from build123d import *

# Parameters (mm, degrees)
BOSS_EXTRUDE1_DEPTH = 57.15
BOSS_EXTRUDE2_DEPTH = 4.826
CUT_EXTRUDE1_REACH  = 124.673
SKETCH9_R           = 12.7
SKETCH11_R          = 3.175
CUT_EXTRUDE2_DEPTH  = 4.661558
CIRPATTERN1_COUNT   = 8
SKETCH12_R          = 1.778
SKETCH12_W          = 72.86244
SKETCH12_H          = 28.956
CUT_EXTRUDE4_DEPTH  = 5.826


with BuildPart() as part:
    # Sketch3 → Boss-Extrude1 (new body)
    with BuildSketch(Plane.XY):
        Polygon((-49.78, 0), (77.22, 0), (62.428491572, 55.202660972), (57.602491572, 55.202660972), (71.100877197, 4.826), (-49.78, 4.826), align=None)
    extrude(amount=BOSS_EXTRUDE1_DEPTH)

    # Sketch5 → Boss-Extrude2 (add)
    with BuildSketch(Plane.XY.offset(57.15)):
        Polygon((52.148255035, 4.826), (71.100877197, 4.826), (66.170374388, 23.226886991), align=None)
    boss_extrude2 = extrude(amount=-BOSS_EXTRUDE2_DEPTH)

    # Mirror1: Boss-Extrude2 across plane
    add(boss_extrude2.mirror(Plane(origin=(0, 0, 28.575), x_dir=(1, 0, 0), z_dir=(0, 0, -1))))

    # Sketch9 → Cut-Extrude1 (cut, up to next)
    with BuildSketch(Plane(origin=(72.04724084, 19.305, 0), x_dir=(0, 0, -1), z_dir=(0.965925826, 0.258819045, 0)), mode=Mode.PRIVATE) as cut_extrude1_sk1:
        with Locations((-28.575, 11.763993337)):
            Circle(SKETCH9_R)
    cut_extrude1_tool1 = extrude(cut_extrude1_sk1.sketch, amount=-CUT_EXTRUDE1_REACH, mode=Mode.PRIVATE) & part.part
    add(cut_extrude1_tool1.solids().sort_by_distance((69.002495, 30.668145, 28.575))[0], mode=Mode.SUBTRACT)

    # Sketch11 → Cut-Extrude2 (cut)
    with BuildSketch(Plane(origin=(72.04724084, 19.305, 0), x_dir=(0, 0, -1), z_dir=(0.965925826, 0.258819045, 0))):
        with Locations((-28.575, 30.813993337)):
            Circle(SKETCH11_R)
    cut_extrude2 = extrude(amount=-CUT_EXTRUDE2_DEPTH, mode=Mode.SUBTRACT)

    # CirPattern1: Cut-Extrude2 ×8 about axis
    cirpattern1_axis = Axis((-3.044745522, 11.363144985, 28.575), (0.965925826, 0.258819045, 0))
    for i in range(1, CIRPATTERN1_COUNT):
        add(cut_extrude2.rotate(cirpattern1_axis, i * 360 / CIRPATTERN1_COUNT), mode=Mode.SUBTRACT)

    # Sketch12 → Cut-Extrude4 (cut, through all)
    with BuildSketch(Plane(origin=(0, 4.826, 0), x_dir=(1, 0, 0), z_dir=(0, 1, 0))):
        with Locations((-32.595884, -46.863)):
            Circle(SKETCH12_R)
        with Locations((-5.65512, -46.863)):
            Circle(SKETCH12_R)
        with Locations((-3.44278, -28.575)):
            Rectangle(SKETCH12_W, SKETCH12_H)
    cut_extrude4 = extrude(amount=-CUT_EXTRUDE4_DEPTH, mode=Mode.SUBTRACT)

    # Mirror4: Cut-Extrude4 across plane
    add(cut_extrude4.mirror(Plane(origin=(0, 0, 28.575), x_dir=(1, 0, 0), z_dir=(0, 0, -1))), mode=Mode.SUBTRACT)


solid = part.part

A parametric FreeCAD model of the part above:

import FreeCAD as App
import Part
import Sketcher
Q = App.Units.Quantity


def add_polygon(sketch, points):
    """Adds a closed chain of lines whose ends are joined by coincident constraints."""
    first, n = sketch.GeometryCount, len(points)
    for a, b in zip(points, points[1:] + points[:1]):
        sketch.addGeometry(Part.LineSegment(App.Vector(*a, 0), App.Vector(*b, 0)), False)
    for i in range(n):
        sketch.addConstraint(Sketcher.Constraint("Coincident", first + i, 2, first + (i + 1) % n, 1))

doc = App.newDocument("Part")
body = doc.addObject("PartDesign::Body", "Body")

# Sketch on XY plane
sketch1 = body.newObject("Sketcher::SketchObject", "Sketch")
sketch1.AttachmentSupport = (doc.getObject("XY_Plane"), [""])
sketch1.MapMode = "FlatFace"
add_polygon(sketch1, [(-49.78, 0), (77.22, 0), (62.428492, 55.202661), (57.602492, 55.202661), (71.100877, 4.826), (-49.78, 4.826)])  # lines 0-5
sketch1.addConstraint([
    Sketcher.Constraint("Horizontal", 0),
    Sketcher.Constraint("Horizontal", 2),
    Sketcher.Constraint("Horizontal", 4),
    Sketcher.Constraint("Vertical", 5),
    Sketcher.Constraint("PointOnObject", 0, 2, -1),
    Sketcher.Constraint("Parallel", 1, 3),
    Sketcher.Constraint("Equal", 2, 5),
    Sketcher.Constraint("DistanceX", 0, 1, 0, 2, Q("5 in")),
    Sketcher.Constraint("Angle", 1, Q("105 deg")),
    Sketcher.Constraint("DistanceX", 2, 2, 2, 1, Q("0.19 in")),
    Sketcher.Constraint("Distance", 1, Q("2.25 in")),
    Sketcher.Constraint("DistanceX", -1, 1, 0, 2, Q("77.22 mm")),
])
pad1 = body.newObject("PartDesign::Pad", "Pad")
pad1.Profile = sketch1
pad1.Length = Q("2.25 in")

# Sketch on XY plane
sketch2 = body.newObject("Sketcher::SketchObject", "Sketch001")
sketch2.AttachmentSupport = (doc.getObject("XY_Plane"), [""])
sketch2.MapMode = "FlatFace"
sketch2.AttachmentOffset = App.Placement(App.Vector(0, 0, 2.25 * 25.4), App.Rotation())
add_polygon(sketch2, [(52.148255, 4.826), (71.100877, 4.826), (66.170374, 23.226887)])  # lines 0-2
sketch2.addConstraint([
    Sketcher.Constraint("Horizontal", 0),
    Sketcher.Constraint("Angle", 1, Q("105 deg")),
    Sketcher.Constraint("Distance", 1, Q("0.75 in")),
    Sketcher.Constraint("DistanceY", -1, 1, 0, 2, Q("0.19 in")),
    Sketcher.Constraint("Distance", 2, Q("23.13466 mm")),
    Sketcher.Constraint("DistanceX", -1, 1, 0, 2, Q("71.100877 mm")),
])
pad2 = body.newObject("PartDesign::Pad", "Pad001")
pad2.Profile = sketch2
pad2.Length = Q("0.19 in")
pad2.Reversed = True
doc.recompute()

datumplane = body.newObject("PartDesign::Plane", "DatumPlane")
datumplane.AttachmentSupport = (doc.getObject("XY_Plane"), [""])
datumplane.MapMode = "FlatFace"
datumplane.AttachmentOffset = App.Placement(App.Vector(0, 0, 1.125 * 25.4), App.Rotation())
mirrored = body.newObject("PartDesign::Mirrored", "Mirrored")
mirrored.Originals = [pad2]
mirrored.MirrorPlane = (datumplane, [""])
body.Tip = mirrored

# Sketch on an angled plane
sketch3 = body.newObject("Sketcher::SketchObject", "Sketch002")
sketch3.Placement = App.Placement(App.Vector(72.047241, 19.305, 0), App.Rotation(App.Vector(0, 0, -1), App.Vector(-0.258819045, 0.965925826, 0), App.Vector(0.965925826, 0.258819045, 0), "ZXY"))
sketch3.addGeometry(Part.Circle(App.Vector(-28.575, 11.763993, 0), App.Vector(0, 0, 1), 12.7), False)
sketch3.addConstraint([
    Sketcher.Constraint("Diameter", 0, Q("1 in")),
    Sketcher.Constraint("DistanceX", 0, 3, -1, 1, Q("1.125 in")),
    Sketcher.Constraint("DistanceY", -1, 1, 0, 3, Q("11.763993 mm")),
])
pocket1 = body.newObject("PartDesign::Pocket", "Pocket")
pocket1.Profile = sketch3
pocket1.Type = "UpToFirst"

# Sketch on an angled plane
sketch4 = body.newObject("Sketcher::SketchObject", "Sketch003")
sketch4.Placement = App.Placement(App.Vector(72.047241, 19.305, 0), App.Rotation(App.Vector(0, 0, -1), App.Vector(-0.258819045, 0.965925826, 0), App.Vector(0.965925826, 0.258819045, 0), "ZXY"))
sketch4.addGeometry(Part.Circle(App.Vector(-28.575, 30.813993, 0), App.Vector(0, 0, 1), 3.175), False)
sketch4.addConstraint([
    Sketcher.Constraint("Diameter", 0, Q("0.25 in")),
    Sketcher.Constraint("DistanceX", 0, 3, -1, 1, Q("1.125 in")),
    Sketcher.Constraint("DistanceY", -1, 1, 0, 3, Q("30.813993 mm")),
])
pocket2 = body.newObject("PartDesign::Pocket", "Pocket001")
pocket2.Profile = sketch4
pocket2.Length = 4.661558
doc.recompute()

datumline = body.newObject("PartDesign::Line", "DatumLine")
datumline.Placement = App.Placement(App.Vector(-3.044746, 11.363145, 28.575), App.Rotation(App.Vector(0, 0, 1), App.Vector(0.965925826, 0.258819045, 0)))
polarpattern = body.newObject("PartDesign::PolarPattern", "PolarPattern")
polarpattern.Originals = [pocket2]
polarpattern.Axis = (datumline, [""])
polarpattern.Angle = 360
polarpattern.Occurrences = 8
body.Tip = polarpattern

# Sketch on XZ plane
sketch5 = body.newObject("Sketcher::SketchObject", "Sketch004")
sketch5.AttachmentSupport = (doc.getObject("XZ_Plane"), [""])
sketch5.MapMode = "FlatFace"
sketch5.AttachmentOffset = App.Placement(App.Vector(0, 0, -0.19 * 25.4), App.Rotation())
sketch5.addGeometry(Part.Circle(App.Vector(-32.595884, 46.863, 0), App.Vector(0, 0, 1), 1.778), False)  # 0
sketch5.addGeometry(Part.Circle(App.Vector(-5.65512, 46.863, 0), App.Vector(0, 0, 1), 1.778), False)  # 1
add_polygon(sketch5, [(-39.874, 14.097), (-39.874, 43.053), (32.98844, 43.053), (32.98844, 14.097)])  # lines 2-5
sketch5.addConstraint([
    Sketcher.Constraint("Vertical", 2),
    Sketcher.Constraint("Horizontal", 3),
    Sketcher.Constraint("Vertical", 4),
    Sketcher.Constraint("Horizontal", 5),
    Sketcher.Constraint("Equal", 0, 1),
    Sketcher.Constraint("Horizontal", 0, 3, 1, 3),
    Sketcher.Constraint("Diameter", 0, Q("0.14 in")),
    Sketcher.Constraint("DistanceY", 2, 1, 2, 2, Q("1.14 in")),
    Sketcher.Constraint("DistanceY", 2, 2, 0, 3, Q("0.15 in")),
    Sketcher.Constraint("DistanceX", 3, 1, 3, 2, Q("2.8686 in")),
    Sketcher.Constraint("DistanceY", -1, 1, 0, 3, Q("1.845 in")),
    Sketcher.Constraint("DistanceX", 2, 2, 1, 3, Q("1.3472 in")),
    Sketcher.Constraint("DistanceX", 2, 2, -1, 1, Q("39.874 mm")),
    Sketcher.Constraint("DistanceX", 0, 3, -1, 1, Q("32.595884 mm")),
])
pocket3 = body.newObject("PartDesign::Pocket", "Pocket002")
pocket3.Profile = sketch5
pocket3.Type = "ThroughAll"
pocket3.Reversed = True
doc.recompute()

datumplane2 = body.newObject("PartDesign::Plane", "DatumPlane001")
datumplane2.AttachmentSupport = (doc.getObject("XY_Plane"), [""])
datumplane2.MapMode = "FlatFace"
datumplane2.AttachmentOffset = App.Placement(App.Vector(0, 0, 1.125 * 25.4), App.Rotation())
mirrored2 = body.newObject("PartDesign::Mirrored", "Mirrored001")
mirrored2.Originals = [pocket3]
mirrored2.MirrorPlane = (datumplane2, [""])
body.Tip = mirrored2

doc.recompute()
